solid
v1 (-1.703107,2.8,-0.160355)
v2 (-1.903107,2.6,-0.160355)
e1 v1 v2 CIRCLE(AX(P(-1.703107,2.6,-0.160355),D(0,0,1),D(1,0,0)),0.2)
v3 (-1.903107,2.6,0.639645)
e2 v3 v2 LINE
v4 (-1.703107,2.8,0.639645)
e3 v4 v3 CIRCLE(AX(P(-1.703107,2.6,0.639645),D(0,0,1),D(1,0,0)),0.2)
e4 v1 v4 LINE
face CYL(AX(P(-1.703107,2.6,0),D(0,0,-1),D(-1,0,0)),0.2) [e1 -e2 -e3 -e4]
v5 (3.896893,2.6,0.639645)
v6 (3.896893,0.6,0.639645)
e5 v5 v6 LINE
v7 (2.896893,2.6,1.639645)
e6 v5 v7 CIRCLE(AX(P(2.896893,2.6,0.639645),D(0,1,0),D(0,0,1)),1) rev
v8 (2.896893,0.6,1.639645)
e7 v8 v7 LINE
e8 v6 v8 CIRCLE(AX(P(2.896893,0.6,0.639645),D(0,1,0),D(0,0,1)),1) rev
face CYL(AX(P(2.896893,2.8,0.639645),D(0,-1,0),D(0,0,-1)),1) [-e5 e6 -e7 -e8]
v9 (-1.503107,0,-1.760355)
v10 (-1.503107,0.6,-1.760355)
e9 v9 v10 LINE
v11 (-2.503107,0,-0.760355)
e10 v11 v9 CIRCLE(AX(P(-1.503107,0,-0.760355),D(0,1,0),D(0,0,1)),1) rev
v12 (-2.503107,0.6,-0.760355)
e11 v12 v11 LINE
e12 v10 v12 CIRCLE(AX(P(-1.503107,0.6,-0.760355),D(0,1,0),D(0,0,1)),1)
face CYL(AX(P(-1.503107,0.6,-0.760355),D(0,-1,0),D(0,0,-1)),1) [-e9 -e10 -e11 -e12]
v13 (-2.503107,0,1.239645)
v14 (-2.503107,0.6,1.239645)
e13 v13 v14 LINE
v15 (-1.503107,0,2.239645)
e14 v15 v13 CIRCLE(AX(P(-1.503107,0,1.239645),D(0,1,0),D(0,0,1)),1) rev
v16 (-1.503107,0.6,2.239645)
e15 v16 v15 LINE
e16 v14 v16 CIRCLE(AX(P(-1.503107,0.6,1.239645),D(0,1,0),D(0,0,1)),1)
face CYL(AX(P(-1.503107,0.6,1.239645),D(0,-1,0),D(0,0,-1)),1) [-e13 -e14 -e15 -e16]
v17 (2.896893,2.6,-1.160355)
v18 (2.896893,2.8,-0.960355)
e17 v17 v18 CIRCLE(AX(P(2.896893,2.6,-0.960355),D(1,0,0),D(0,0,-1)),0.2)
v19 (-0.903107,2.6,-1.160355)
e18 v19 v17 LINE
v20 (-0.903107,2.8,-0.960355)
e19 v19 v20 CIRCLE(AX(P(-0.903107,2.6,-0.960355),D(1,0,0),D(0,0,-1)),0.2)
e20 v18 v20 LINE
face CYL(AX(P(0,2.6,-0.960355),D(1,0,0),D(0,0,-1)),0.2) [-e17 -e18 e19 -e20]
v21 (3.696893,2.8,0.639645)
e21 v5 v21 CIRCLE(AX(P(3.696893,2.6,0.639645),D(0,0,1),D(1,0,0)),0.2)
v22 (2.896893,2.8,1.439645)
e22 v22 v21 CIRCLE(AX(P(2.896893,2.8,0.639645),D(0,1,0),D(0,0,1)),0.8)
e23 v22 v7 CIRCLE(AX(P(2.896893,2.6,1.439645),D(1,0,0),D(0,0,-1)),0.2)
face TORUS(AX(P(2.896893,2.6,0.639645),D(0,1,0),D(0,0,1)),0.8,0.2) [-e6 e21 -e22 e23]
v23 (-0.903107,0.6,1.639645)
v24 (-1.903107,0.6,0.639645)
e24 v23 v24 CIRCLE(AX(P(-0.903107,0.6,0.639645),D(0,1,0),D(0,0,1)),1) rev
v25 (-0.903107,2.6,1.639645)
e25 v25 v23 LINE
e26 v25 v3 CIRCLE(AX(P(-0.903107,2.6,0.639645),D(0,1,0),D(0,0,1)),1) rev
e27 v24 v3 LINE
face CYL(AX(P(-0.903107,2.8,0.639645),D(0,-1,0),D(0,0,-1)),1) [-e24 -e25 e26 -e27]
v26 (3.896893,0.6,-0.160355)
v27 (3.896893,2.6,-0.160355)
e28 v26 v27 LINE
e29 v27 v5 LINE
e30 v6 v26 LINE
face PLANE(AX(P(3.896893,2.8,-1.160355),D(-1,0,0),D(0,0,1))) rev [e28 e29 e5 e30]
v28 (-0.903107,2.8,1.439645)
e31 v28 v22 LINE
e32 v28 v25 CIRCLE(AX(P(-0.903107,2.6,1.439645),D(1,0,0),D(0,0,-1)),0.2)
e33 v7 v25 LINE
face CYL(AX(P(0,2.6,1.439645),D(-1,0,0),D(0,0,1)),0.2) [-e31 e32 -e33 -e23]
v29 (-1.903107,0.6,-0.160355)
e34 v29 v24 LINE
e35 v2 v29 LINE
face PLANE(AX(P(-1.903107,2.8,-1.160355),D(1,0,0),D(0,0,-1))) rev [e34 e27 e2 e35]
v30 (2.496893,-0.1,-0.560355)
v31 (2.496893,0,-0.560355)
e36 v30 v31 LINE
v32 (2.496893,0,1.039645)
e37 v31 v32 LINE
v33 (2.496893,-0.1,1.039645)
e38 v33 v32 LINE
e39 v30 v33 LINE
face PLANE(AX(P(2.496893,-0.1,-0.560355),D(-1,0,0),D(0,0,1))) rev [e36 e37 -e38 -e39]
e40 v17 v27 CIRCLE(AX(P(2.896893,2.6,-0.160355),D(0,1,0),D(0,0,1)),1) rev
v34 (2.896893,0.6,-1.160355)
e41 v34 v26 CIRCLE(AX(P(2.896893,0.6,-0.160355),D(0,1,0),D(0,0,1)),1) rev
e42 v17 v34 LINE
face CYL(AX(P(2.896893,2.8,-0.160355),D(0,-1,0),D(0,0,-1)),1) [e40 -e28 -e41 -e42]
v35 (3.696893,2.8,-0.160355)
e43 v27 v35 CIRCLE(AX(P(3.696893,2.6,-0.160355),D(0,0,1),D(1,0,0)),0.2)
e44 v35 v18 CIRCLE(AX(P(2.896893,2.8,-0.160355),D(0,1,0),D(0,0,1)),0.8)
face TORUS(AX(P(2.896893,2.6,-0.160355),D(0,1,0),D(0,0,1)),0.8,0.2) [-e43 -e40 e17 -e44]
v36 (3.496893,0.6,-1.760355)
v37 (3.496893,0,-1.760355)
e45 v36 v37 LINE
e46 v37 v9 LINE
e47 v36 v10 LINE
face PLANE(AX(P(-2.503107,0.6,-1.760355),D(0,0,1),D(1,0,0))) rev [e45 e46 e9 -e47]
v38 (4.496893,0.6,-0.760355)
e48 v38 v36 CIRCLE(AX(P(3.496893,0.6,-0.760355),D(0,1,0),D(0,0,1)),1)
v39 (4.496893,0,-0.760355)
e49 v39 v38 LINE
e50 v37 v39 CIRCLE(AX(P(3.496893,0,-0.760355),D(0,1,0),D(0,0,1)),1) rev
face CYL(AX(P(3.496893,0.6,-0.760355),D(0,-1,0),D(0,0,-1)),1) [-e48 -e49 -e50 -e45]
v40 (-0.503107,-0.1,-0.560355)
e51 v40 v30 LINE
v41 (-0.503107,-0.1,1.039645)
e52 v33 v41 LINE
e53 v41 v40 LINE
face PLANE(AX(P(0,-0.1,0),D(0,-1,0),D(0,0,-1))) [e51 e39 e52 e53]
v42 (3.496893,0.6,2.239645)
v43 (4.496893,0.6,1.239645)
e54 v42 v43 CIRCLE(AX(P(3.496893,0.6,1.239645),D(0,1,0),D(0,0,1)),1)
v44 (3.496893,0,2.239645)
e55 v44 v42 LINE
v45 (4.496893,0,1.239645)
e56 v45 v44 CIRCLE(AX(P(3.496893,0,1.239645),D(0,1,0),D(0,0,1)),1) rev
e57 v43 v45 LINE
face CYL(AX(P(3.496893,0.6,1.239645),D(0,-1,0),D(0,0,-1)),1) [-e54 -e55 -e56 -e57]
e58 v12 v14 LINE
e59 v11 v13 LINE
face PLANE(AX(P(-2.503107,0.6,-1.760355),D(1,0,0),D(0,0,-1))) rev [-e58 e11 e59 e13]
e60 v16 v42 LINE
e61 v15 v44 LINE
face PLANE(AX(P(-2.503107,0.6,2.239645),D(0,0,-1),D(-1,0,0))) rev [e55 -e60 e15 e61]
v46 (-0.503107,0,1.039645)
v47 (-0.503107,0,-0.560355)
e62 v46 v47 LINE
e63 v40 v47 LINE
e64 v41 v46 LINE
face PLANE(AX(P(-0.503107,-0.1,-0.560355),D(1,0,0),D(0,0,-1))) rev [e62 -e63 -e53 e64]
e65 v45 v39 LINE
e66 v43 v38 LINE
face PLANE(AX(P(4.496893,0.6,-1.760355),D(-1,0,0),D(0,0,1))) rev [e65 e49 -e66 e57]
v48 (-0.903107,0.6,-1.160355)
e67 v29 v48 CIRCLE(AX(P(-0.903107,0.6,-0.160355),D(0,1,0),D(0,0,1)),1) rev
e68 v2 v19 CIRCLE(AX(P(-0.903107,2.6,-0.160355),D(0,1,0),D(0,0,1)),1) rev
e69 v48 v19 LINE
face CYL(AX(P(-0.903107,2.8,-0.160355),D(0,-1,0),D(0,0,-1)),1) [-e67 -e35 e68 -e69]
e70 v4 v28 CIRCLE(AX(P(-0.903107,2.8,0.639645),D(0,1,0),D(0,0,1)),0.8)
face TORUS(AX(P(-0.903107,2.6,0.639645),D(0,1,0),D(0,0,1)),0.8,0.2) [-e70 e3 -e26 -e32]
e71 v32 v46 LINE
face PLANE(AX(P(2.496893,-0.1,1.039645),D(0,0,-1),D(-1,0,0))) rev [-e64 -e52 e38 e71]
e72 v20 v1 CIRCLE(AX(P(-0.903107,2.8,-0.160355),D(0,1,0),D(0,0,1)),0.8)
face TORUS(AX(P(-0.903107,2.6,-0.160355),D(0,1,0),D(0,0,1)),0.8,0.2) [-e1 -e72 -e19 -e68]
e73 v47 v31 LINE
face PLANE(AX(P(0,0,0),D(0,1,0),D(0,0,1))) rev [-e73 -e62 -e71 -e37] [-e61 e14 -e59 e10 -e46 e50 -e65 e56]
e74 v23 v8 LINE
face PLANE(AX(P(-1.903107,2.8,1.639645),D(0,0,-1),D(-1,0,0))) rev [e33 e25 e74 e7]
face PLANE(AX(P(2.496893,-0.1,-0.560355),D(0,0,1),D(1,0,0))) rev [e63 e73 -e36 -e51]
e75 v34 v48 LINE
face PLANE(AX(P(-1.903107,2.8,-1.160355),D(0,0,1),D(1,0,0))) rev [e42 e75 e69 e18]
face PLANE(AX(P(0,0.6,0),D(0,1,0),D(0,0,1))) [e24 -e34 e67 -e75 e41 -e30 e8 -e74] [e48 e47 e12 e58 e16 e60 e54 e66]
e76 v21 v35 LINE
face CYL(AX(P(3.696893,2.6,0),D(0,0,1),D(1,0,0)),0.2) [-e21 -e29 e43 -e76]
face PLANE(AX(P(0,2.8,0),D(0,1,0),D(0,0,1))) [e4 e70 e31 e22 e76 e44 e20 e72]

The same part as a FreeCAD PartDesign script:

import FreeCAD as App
import Part
import Sketcher

V = App.Vector
Q = App.Units.Quantity


def edges_at(feature, points):
    """Names of the edges that pass closest to the given points."""
    edges = feature.Shape.Edges
    near = lambda p: min(range(len(edges)), key=lambda i: edges[i].distToShape(Part.Vertex(*p))[0])
    return sorted({f"Edge{near(p) + 1}" for p in points})


def add_polygon(sketch, points):
    """Adds a closed chain of lines whose ends are joined by coincident constraints."""
    first, n = sketch.GeometryCount, len(points)
    for a, b in zip(points, points[1:] + points[:1]):
        sketch.addGeometry(Part.LineSegment(App.Vector(*a, 0), App.Vector(*b, 0)), False)
    for i in range(n):
        sketch.addConstraint(Sketcher.Constraint("Coincident", first + i, 2, first + (i + 1) % n, 1))

doc = App.newDocument("Part")
body = doc.addObject("PartDesign::Body", "Body")

sketch1 = body.newObject("Sketcher::SketchObject", "Sketch")
sketch1.AttachmentSupport = (doc.getObject("XZ_Plane"), [""])
sketch1.MapMode = "FlatFace"
add_polygon(sketch1, [(-2.5, -1.8), (-2.5, 2.2), (4.5, 2.2), (4.5, -1.8)])
sketch1.addConstraint([
    Sketcher.Constraint("Vertical", 0),
    Sketcher.Constraint("Horizontal", 1),
    Sketcher.Constraint("Vertical", 2),
    Sketcher.Constraint("Horizontal", 3),
    Sketcher.Constraint("DistanceX", 1, 1, 1, 2, Q("7 mm")),
    Sketcher.Constraint("DistanceY", 0, 1, 0, 2, Q("4 mm")),
    Sketcher.Constraint("DistanceX", 0, 2, -1, 1, Q("2.503107 mm")),
    Sketcher.Constraint("DistanceY", -1, 1, 0, 2, Q("2.239645 mm")),
])
pad1 = body.newObject("PartDesign::Pad", "Pad")
pad1.Profile = sketch1
pad1.Length = 0.6
pad1.Reversed = True

sketch2 = body.newObject("Sketcher::SketchObject", "Sketch001")
sketch2.AttachmentSupport = (doc.getObject("XZ_Plane"), [""])
sketch2.MapMode = "FlatFace"
sketch2.AttachmentOffset = App.Placement(V(0, 0, -0.6), App.Rotation())
add_polygon(sketch2, [(-1.9, -1.2), (-1.9, 1.6), (3.9, 1.6), (3.9, -1.2)])
sketch2.addConstraint([
    Sketcher.Constraint("Vertical", 0),
    Sketcher.Constraint("Horizontal", 1),
    Sketcher.Constraint("Vertical", 2),
    Sketcher.Constraint("Horizontal", 3),
    Sketcher.Constraint("DistanceX", 1, 1, 1, 2, Q("5.8 mm")),
    Sketcher.Constraint("DistanceY", 0, 1, 0, 2, Q("2.8 mm")),
    Sketcher.Constraint("DistanceX", 0, 2, -1, 1, Q("1.903107 mm")),
    Sketcher.Constraint("DistanceY", -1, 1, 0, 2, Q("1.639645 mm")),
])
pad2 = body.newObject("PartDesign::Pad", "Pad001")
pad2.Profile = sketch2
pad2.Length = 2.2
pad2.Reversed = True
doc.recompute()

fillet = body.newObject("PartDesign::Fillet", "Fillet")
fillet.Base = (pad2, edges_at(pad2, [
    (3.897, 1.7, 1.64),
    (3.897, 1.7, -1.16),
    (-1.903, 1.7, -1.16),
    (-1.903, 1.7, 1.64),
    (-2.503, 0.3, -1.76),
    (4.497, 0.3, -1.76),
    (4.497, 0.3, 2.24),
    (-2.503, 0.3, 2.24),
]))
fillet.Radius = 1

sketch3 = body.newObject("Sketcher::SketchObject", "Sketch002")
sketch3.AttachmentSupport = (doc.getObject("XZ_Plane"), [""])
sketch3.MapMode = "FlatFace"
add_polygon(sketch3, [(2.5, -0.6), (2.5, 1), (-0.5, 1), (-0.5, -0.6)])
sketch3.addConstraint([
    Sketcher.Constraint("Vertical", 0),
    Sketcher.Constraint("Horizontal", 1),
    Sketcher.Constraint("Vertical", 2),
    Sketcher.Constraint("Horizontal", 3),
    Sketcher.Constraint("DistanceX", 1, 2, 1, 1, Q("3 mm")),
    Sketcher.Constraint("DistanceY", 0, 1, 0, 2, Q("1.6 mm")),
    Sketcher.Constraint("DistanceX", -1, 1, 0, 2, Q("2.496893 mm")),
    Sketcher.Constraint("DistanceY", -1, 1, 0, 2, Q("1.039645 mm")),
])
pad3 = body.newObject("PartDesign::Pad", "Pad002")
pad3.Profile = sketch3
pad3.Length = 0.1
doc.recompute()

fillet2 = body.newObject("PartDesign::Fillet", "Fillet001")
fillet2.Base = (pad3, edges_at(pad3, [
    (0.997, 2.8, -1.16),
    (3.897, 2.8, 0.24),
    (-1.903, 2.8, 0.24),
    (0.997, 2.8, 1.64),
    (3.604, 2.8, 1.347),
    (-1.61, 2.8, 1.347),
    (-1.61, 2.8, -0.867),
    (3.604, 2.8, -0.867),
]))
fillet2.Radius = 0.2

doc.recompute()
